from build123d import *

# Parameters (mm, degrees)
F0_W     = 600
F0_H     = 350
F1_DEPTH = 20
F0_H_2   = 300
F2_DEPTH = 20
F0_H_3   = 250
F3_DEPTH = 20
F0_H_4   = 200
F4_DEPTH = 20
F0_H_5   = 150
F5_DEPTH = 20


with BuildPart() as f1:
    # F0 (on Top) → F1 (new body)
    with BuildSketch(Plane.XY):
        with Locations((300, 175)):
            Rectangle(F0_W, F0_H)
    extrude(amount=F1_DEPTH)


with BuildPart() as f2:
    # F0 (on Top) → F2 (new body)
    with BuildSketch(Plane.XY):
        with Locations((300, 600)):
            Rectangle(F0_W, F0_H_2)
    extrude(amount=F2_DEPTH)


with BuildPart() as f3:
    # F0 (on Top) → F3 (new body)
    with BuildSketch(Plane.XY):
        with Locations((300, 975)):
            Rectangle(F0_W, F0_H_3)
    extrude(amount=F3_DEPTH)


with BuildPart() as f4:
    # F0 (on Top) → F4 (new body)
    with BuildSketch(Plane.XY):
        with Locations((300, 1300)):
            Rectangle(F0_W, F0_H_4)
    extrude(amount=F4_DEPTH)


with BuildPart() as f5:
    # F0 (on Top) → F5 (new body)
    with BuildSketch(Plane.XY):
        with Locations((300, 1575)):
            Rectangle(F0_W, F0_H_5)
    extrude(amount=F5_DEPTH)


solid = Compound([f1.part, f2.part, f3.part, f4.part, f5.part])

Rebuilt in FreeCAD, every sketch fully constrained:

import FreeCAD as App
import Part
import Sketcher

V = App.Vector

doc = App.newDocument("Part")
body = doc.addObject("PartDesign::Body", "Body")

# Sketch on XY plane
sketch1 = body.newObject("Sketcher::SketchObject", "Sketch")
sketch1.AttachmentSupport = (doc.getObject("XY_Plane"), [""])
sketch1.MapMode = "FlatFace"
sketch1.addGeometry([
    Part.LineSegment(V(0, 350, 0), V(0, 0, 0)),
    Part.LineSegment(V(0, 0, 0), V(600, 0, 0)),
    Part.LineSegment(V(600, 0, 0), V(600, 350, 0)),
    Part.LineSegment(V(600, 350, 0), V(0, 350, 0)),
], False)
sketch1.addConstraint([
    Sketcher.Constraint("Coincident", 0, 2, 1, 1),
    Sketcher.Constraint("Coincident", 1, 2, 2, 1),
    Sketcher.Constraint("Coincident", 2, 2, 3, 1),
    Sketcher.Constraint("Coincident", 3, 2, 0, 1),
    Sketcher.Constraint("Vertical", 0),
    Sketcher.Constraint("Horizontal", 1),
    Sketcher.Constraint("Vertical", 2),
    Sketcher.Constraint("Horizontal", 3),
    Sketcher.Constraint("Coincident", 0, 2, -1, 1),
    Sketcher.Constraint("DistanceX", 1, 1, 1, 2, 600.0),
    Sketcher.Constraint("DistanceY", 0, 2, 0, 1, 350.0),
])
pad1 = body.newObject("PartDesign::Pad", "Pad")
pad1.Profile = sketch1
pad1.Length = 20
body2 = doc.addObject("PartDesign::Body", "Body001")

# Sketch on XY plane
sketch2 = body2.newObject("Sketcher::SketchObject", "Sketch001")
sketch2.AttachmentSupport = (doc.getObject("XY_Plane001"), [""])
sketch2.MapMode = "FlatFace"
sketch2.addGeometry([
    Part.LineSegment(V(0, 750, 0), V(0, 450, 0)),
    Part.LineSegment(V(0, 450, 0), V(600, 450, 0)),
    Part.LineSegment(V(600, 450, 0), V(600, 750, 0)),
    Part.LineSegment(V(600, 750, 0), V(0, 750, 0)),
], False)
sketch2.addConstraint([
    Sketcher.Constraint("Coincident", 0, 2, 1, 1),
    Sketcher.Constraint("Coincident", 1, 2, 2, 1),
    Sketcher.Constraint("Coincident", 2, 2, 3, 1),
    Sketcher.Constraint("Coincident", 3, 2, 0, 1),
    Sketcher.Constraint("Vertical", 0),
    Sketcher.Constraint("Horizontal", 1),
    Sketcher.Constraint("Vertical", 2),
    Sketcher.Constraint("Horizontal", 3),
    Sketcher.Constraint("PointOnObject", 0, 2, -2),
    Sketcher.Constraint("DistanceX", 1, 1, 1, 2, 600.0),
    Sketcher.Constraint("DistanceY", 0, 2, 0, 1, 300.0),
    Sketcher.Constraint("DistanceY", -1, 1, 0, 2, 450.0),
])
pad2 = body2.newObject("PartDesign::Pad", "Pad001")
pad2.Profile = sketch2
pad2.Length = 20
body3 = doc.addObject("PartDesign::Body", "Body002")

# Sketch on XY plane
sketch3 = body3.newObject("Sketcher::SketchObject", "Sketch002")
sketch3.AttachmentSupport = (doc.getObject("XY_Plane002"), [""])
sketch3.MapMode = "FlatFace"
sketch3.addGeometry([
    Part.LineSegment(V(0, 1100, 0), V(0, 850, 0)),
    Part.LineSegment(V(0, 850, 0), V(600, 850, 0)),
    Part.LineSegment(V(600, 850, 0), V(600, 1100, 0)),
    Part.LineSegment(V(600, 1100, 0), V(0, 1100, 0)),
], False)
sketch3.addConstraint([
    Sketcher.Constraint("Coincident", 0, 2, 1, 1),
    Sketcher.Constraint("Coincident", 1, 2, 2, 1),
    Sketcher.Constraint("Coincident", 2, 2, 3, 1),
    Sketcher.Constraint("Coincident", 3, 2, 0, 1),
    Sketcher.Constraint("Vertical", 0),
    Sketcher.Constraint("Horizontal", 1),
    Sketcher.Constraint("Vertical", 2),
    Sketcher.Constraint("Horizontal", 3),
    Sketcher.Constraint("PointOnObject", 0, 2, -2),
    Sketcher.Constraint("DistanceX", 1, 1, 1, 2, 600.0),
    Sketcher.Constraint("DistanceY", 0, 2, 0, 1, 250.0),
    Sketcher.Constraint("DistanceY", -1, 1, 0, 2, 850.0),
])
pad3 = body3.newObject("PartDesign::Pad", "Pad002")
pad3.Profile = sketch3
pad3.Length = 20
body4 = doc.addObject("PartDesign::Body", "Body003")

# Sketch on XY plane
sketch4 = body4.newObject("Sketcher::SketchObject", "Sketch003")
sketch4.AttachmentSupport = (doc.getObject("XY_Plane003"), [""])
sketch4.MapMode = "FlatFace"
sketch4.addGeometry([
    Part.LineSegment(V(0, 1400, 0), V(0, 1200, 0)),
    Part.LineSegment(V(0, 1200, 0), V(600, 1200, 0)),
    Part.LineSegment(V(600, 1200, 0), V(600, 1400, 0)),
    Part.LineSegment(V(600, 1400, 0), V(0, 1400, 0)),
], False)
sketch4.addConstraint([
    Sketcher.Constraint("Coincident", 0, 2, 1, 1),
    Sketcher.Constraint("Coincident", 1, 2, 2, 1),
    Sketcher.Constraint("Coincident", 2, 2, 3, 1),
    Sketcher.Constraint("Coincident", 3, 2, 0, 1),
    Sketcher.Constraint("Vertical", 0),
    Sketcher.Constraint("Horizontal", 1),
    Sketcher.Constraint("Vertical", 2),
    Sketcher.Constraint("Horizontal", 3),
    Sketcher.Constraint("PointOnObject", 0, 2, -2),
    Sketcher.Constraint("DistanceX", 1, 1, 1, 2, 600.0),
    Sketcher.Constraint("DistanceY", 0, 2, 0, 1, 200.0),
    Sketcher.Constraint("DistanceY", -1, 1, 0, 2, 1200.0),
])
pad4 = body4.newObject("PartDesign::Pad", "Pad003")
pad4.Profile = sketch4
pad4.Length = 20
body5 = doc.addObject("PartDesign::Body", "Body004")

# Sketch on XY plane
sketch5 = body5.newObject("Sketcher::SketchObject", "Sketch004")
sketch5.AttachmentSupport = (doc.getObject("XY_Plane004"), [""])
sketch5.MapMode = "FlatFace"
sketch5.addGeometry([
    Part.LineSegment(V(0, 1650, 0), V(0, 1500, 0)),
    Part.LineSegment(V(0, 1500, 0), V(600, 1500, 0)),
    Part.LineSegment(V(600, 1500, 0), V(600, 1650, 0)),
    Part.LineSegment(V(600, 1650, 0), V(0, 1650, 0)),
], False)
sketch5.addConstraint([
    Sketcher.Constraint("Coincident", 0, 2, 1, 1),
    Sketcher.Constraint("Coincident", 1, 2, 2, 1),
    Sketcher.Constraint("Coincident", 2, 2, 3, 1),
    Sketcher.Constraint("Coincident", 3, 2, 0, 1),
    Sketcher.Constraint("Vertical", 0),
    Sketcher.Constraint("Horizontal", 1),
    Sketcher.Constraint("Vertical", 2),
    Sketcher.Constraint("Horizontal", 3),
    Sketcher.Constraint("PointOnObject", 0, 2, -2),
    Sketcher.Constraint("DistanceX", 1, 1, 1, 2, 600.0),
    Sketcher.Constraint("DistanceY", 0, 2, 0, 1, 150.0),
    Sketcher.Constraint("DistanceY", -1, 1, 0, 2, 1500.0),
])
pad5 = body5.newObject("PartDesign::Pad", "Pad004")
pad5.Profile = sketch5
pad5.Length = 20

doc.recompute()
